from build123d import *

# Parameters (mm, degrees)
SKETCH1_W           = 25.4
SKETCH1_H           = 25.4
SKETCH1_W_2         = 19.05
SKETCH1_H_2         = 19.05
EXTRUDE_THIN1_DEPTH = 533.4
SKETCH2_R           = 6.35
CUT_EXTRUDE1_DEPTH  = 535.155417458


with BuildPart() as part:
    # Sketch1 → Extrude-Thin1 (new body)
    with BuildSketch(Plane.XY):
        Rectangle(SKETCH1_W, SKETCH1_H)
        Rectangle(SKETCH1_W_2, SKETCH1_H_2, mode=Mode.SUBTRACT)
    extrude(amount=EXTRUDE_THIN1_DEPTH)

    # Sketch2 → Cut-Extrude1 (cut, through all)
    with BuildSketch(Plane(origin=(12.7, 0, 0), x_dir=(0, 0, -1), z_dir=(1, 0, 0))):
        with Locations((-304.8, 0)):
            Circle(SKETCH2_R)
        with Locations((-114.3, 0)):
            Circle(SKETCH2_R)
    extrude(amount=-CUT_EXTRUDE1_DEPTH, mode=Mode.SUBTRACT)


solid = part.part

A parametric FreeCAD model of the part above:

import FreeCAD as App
import Part
import Sketcher
from FreeCAD import Vector
Q = App.Units.Quantity

doc = App.newDocument("Part")
body = doc.addObject("PartDesign::Body", "Body")

# Sketch on XY plane
sketch1 = body.newObject("Sketcher::SketchObject", "Sketch")
sketch1.AttachmentSupport = (doc.getObject("XY_Plane"), [""])
sketch1.MapMode = "FlatFace"
sketch1.addGeometry(Part.LineSegment(Vector(-13, 13, 0), Vector(-13, -13, 0)), False)
sketch1.addGeometry(Part.LineSegment(Vector(-13, -13, 0), Vector(13, -13, 0)), False)
sketch1.addGeometry(Part.LineSegment(Vector(13, -13, 0), Vector(13, 13, 0)), False)
sketch1.addGeometry(Part.LineSegment(Vector(13, 13, 0), Vector(-13, 13, 0)), False)
sketch1.addGeometry(Part.LineSegment(Vector(10, -10, 0), Vector(-10, -10, 0)), False)
sketch1.addGeometry(Part.LineSegment(Vector(-10, -10, 0), Vector(-10, 10, 0)), False)
sketch1.addGeometry(Part.LineSegment(Vector(-10, 10, 0), Vector(10, 10, 0)), False)
sketch1.addGeometry(Part.LineSegment(Vector(10, 10, 0), Vector(10, -10, 0)), False)
sketch1.addConstraint(Sketcher.Constraint("Coincident", 0, 2, 1, 1))
sketch1.addConstraint(Sketcher.Constraint("Coincident", 1, 2, 2, 1))
sketch1.addConstraint(Sketcher.Constraint("Coincident", 2, 2, 3, 1))
sketch1.addConstraint(Sketcher.Constraint("Coincident", 3, 2, 0, 1))
sketch1.addConstraint(Sketcher.Constraint("Coincident", 4, 2, 5, 1))
sketch1.addConstraint(Sketcher.Constraint("Coincident", 5, 2, 6, 1))
sketch1.addConstraint(Sketcher.Constraint("Coincident", 6, 2, 7, 1))
sketch1.addConstraint(Sketcher.Constraint("Coincident", 7, 2, 4, 1))
sketch1.addConstraint(Sketcher.Constraint("Vertical", 0))
sketch1.addConstraint(Sketcher.Constraint("Horizontal", 1))
sketch1.addConstraint(Sketcher.Constraint("Vertical", 2))
sketch1.addConstraint(Sketcher.Constraint("Horizontal", 3))
sketch1.addConstraint(Sketcher.Constraint("Horizontal", 4))
sketch1.addConstraint(Sketcher.Constraint("Vertical", 5))
sketch1.addConstraint(Sketcher.Constraint("Horizontal", 6))
sketch1.addConstraint(Sketcher.Constraint("Vertical", 7))
sketch1.addConstraint(Sketcher.Constraint("Symmetric", 0, 2, 2, 2, -1, 1))
sketch1.addConstraint(Sketcher.Constraint("Symmetric", 4, 2, 6, 2, -1, 1))
sketch1.addConstraint(Sketcher.Constraint("Equal", 3, 0))
sketch1.addConstraint(Sketcher.Constraint("Equal", 6, 5))
sketch1.addConstraint(Sketcher.Constraint("DistanceX", 1, 1, 1, 2, Q("1 in")))
sketch1.addConstraint(Sketcher.Constraint("DistanceX", 4, 2, 4, 1, Q("0.75 in")))
pad1 = body.newObject("PartDesign::Pad", "Pad")
pad1.Profile = sketch1
pad1.Length = Q("21 in")

# Sketch on YZ plane
sketch2 = body.newObject("Sketcher::SketchObject", "Sketch001")
sketch2.AttachmentSupport = (doc.getObject("YZ_Plane"), [""])
sketch2.MapMode = "FlatFace"
sketch2.AttachmentOffset = App.Placement(Vector(0, 0, 0.5 * 25.4), App.Rotation())
sketch2.addGeometry(Part.Circle(Vector(0, 305, 0), Vector(0, 0, 1), 6), False)
sketch2.addGeometry(Part.Circle(Vector(0, 114, 0), Vector(0, 0, 1), 6), False)
sketch2.addConstraint(Sketcher.Constraint("Equal", 0, 1))
sketch2.addConstraint(Sketcher.Constraint("PointOnObject", 0, 3, -2))
sketch2.addConstraint(Sketcher.Constraint("PointOnObject", 1, 3, -2))
sketch2.addConstraint(Sketcher.Constraint("Diameter", 0, Q("0.5 in")))
sketch2.addConstraint(Sketcher.Constraint("DistanceY", -1, 1, 0, 3, Q("12 in")))
sketch2.addConstraint(Sketcher.Constraint("DistanceY", -1, 1, 1, 3, Q("4.5 in")))
pocket1 = body.newObject("PartDesign::Pocket", "Pocket")
pocket1.Profile = sketch2
pocket1.Type = "ThroughAll"

doc.recompute()
